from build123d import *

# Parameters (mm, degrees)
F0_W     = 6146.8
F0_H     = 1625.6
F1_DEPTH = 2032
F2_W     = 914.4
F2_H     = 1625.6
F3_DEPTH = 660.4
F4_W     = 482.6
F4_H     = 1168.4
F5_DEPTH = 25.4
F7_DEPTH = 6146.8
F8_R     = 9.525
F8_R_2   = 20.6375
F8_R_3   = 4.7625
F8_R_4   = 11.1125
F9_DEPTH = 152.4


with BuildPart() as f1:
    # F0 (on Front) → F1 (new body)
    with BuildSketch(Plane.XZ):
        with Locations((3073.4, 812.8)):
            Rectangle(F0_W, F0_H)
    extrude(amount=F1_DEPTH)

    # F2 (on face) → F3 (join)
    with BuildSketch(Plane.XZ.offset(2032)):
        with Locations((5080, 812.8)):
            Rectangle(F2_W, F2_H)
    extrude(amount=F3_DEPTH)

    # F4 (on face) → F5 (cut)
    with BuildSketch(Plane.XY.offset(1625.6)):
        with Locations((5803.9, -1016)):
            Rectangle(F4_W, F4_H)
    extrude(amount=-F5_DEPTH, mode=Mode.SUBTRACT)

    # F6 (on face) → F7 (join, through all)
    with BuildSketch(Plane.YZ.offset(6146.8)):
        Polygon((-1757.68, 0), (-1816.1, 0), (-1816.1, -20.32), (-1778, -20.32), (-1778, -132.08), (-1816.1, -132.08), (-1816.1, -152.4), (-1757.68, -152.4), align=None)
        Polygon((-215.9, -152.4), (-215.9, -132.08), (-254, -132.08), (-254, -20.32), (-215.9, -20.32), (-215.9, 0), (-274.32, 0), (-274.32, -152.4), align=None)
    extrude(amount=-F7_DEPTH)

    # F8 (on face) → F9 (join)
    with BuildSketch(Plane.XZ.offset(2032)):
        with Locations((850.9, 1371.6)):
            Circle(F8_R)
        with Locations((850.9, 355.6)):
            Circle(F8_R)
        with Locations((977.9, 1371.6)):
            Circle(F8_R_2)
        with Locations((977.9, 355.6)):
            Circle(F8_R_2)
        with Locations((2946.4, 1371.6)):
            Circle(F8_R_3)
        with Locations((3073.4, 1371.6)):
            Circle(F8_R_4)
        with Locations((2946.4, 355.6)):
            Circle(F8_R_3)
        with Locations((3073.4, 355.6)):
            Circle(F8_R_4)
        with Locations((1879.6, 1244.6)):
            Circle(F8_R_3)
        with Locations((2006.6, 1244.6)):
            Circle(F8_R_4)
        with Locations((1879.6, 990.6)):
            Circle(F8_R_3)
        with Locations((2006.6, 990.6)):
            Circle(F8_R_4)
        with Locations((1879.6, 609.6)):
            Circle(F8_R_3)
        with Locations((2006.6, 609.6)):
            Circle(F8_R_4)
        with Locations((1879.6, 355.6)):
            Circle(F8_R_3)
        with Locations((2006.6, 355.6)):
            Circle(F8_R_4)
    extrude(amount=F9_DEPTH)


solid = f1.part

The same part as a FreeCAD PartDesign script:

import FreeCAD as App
import Part
import Sketcher

V = App.Vector
Q = App.Units.Quantity

doc = App.newDocument("Part")
params = doc.addObject("Spreadsheet::Sheet", "Params")
for row, (alias, value) in enumerate([
    ("sketch1_width", "242 in"),
    ("sketch1_height", "64 in"),
    ("pad1_length", "80 in"),
    ("sketch2_width", "36 in"),
    ("sketch2_height", "64 in"),
    ("pad2_length", "26 in"),
    ("sketch3_width", "19 in"),
    ("sketch3_height", "46 in"),
    ("pocket1_length", "1 in"),
    ("sketch4_height", "6 in"),
    ("sketch4_width", "2.3 in"),
    ("sketch4_width2", "1.5 in"),
    ("sketch4_height2", "0.8 in"),
    ("pad3_length", "242 in"),
    ("sketch5_diameter", "0.75 in"),
    ("sketch5_diameter2", "1.625 in"),
    ("sketch5_diameter3", "0.375 in"),
    ("sketch5_diameter4", "0.875 in"),
    ("pad4_length", "6 in"),
], start=1):
    params.set(f"A{row}", alias)
    params.set(f"B{row}", "=" + value)
    params.setAlias(f"B{row}", alias)

body = doc.addObject("PartDesign::Body", "Body")

# Sketch on XZ plane
sketch1 = body.newObject("Sketcher::SketchObject", "Sketch")
sketch1.AttachmentSupport = (doc.getObject("XZ_Plane"), [""])
sketch1.MapMode = "FlatFace"
sketch1.addGeometry([
    Part.LineSegment(V(0, 1626, 0), V(0, 0, 0)),
    Part.LineSegment(V(0, 0, 0), V(6147, 0, 0)),
    Part.LineSegment(V(6147, 0, 0), V(6147, 1626, 0)),
    Part.LineSegment(V(6147, 1626, 0), V(0, 1626, 0)),
], False)
sketch1.addConstraint([
    Sketcher.Constraint("Coincident", 0, 2, 1, 1),
    Sketcher.Constraint("Coincident", 1, 2, 2, 1),
    Sketcher.Constraint("Coincident", 2, 2, 3, 1),
    Sketcher.Constraint("Coincident", 3, 2, 0, 1),
    Sketcher.Constraint("Vertical", 0),
    Sketcher.Constraint("Horizontal", 1),
    Sketcher.Constraint("Vertical", 2),
    Sketcher.Constraint("Horizontal", 3),
    Sketcher.Constraint("Coincident", 0, 2, -1, 1),
    Sketcher.Constraint("DistanceX", 1, 1, 1, 2, Q("242 in")),
    Sketcher.Constraint("DistanceY", 0, 2, 0, 1, Q("64 in")),
])
sketch1.setExpression("Constraints[9]", "Params.sketch1_width")
sketch1.setExpression("Constraints[10]", "Params.sketch1_height")
pad1 = body.newObject("PartDesign::Pad", "Pad")
pad1.Profile = sketch1
pad1.setExpression("Length", "Params.pad1_length")

# Sketch on XZ plane
sketch2 = body.newObject("Sketcher::SketchObject", "Sketch001")
sketch2.AttachmentSupport = (doc.getObject("XZ_Plane"), [""])
sketch2.MapMode = "FlatFace"
sketch2.AttachmentOffset = App.Placement(V(0, 0, 80 * 25.4), App.Rotation())
sketch2.addGeometry([
    Part.LineSegment(V(4623, 1626, 0), V(4623, 0, 0)),
    Part.LineSegment(V(4623, 0, 0), V(5537, 0, 0)),
    Part.LineSegment(V(5537, 0, 0), V(5537, 1626, 0)),
    Part.LineSegment(V(5537, 1626, 0), V(4623, 1626, 0)),
], False)
sketch2.addConstraint([
    Sketcher.Constraint("Coincident", 0, 2, 1, 1),
    Sketcher.Constraint("Coincident", 1, 2, 2, 1),
    Sketcher.Constraint("Coincident", 2, 2, 3, 1),
    Sketcher.Constraint("Coincident", 3, 2, 0, 1),
    Sketcher.Constraint("Vertical", 0),
    Sketcher.Constraint("Horizontal", 1),
    Sketcher.Constraint("Vertical", 2),
    Sketcher.Constraint("Horizontal", 3),
    Sketcher.Constraint("PointOnObject", 0, 2, -1),
    Sketcher.Constraint("DistanceX", 1, 1, 1, 2, Q("36 in")),
    Sketcher.Constraint("DistanceY", 0, 2, 0, 1, Q("64 in")),
    Sketcher.Constraint("DistanceX", -1, 1, 0, 2, Q("182 in")),
])
sketch2.setExpression("Constraints[9]", "Params.sketch2_width")
sketch2.setExpression("Constraints[10]", "Params.sketch2_height")
pad2 = body.newObject("PartDesign::Pad", "Pad001")
pad2.Profile = sketch2
pad2.setExpression("Length", "Params.pad2_length")

# Sketch on XY plane
sketch3 = body.newObject("Sketcher::SketchObject", "Sketch002")
sketch3.AttachmentSupport = (doc.getObject("XY_Plane"), [""])
sketch3.MapMode = "FlatFace"
sketch3.AttachmentOffset = App.Placement(V(0, 0, 64 * 25.4), App.Rotation())
sketch3.addGeometry([
    Part.LineSegment(V(5563, -432, 0), V(5563, -1600, 0)),
    Part.LineSegment(V(5563, -1600, 0), V(6045, -1600, 0)),
    Part.LineSegment(V(6045, -1600, 0), V(6045, -432, 0)),
    Part.LineSegment(V(6045, -432, 0), V(5563, -432, 0)),
], False)
sketch3.addConstraint([
    Sketcher.Constraint("Coincident", 0, 2, 1, 1),
    Sketcher.Constraint("Coincident", 1, 2, 2, 1),
    Sketcher.Constraint("Coincident", 2, 2, 3, 1),
    Sketcher.Constraint("Coincident", 3, 2, 0, 1),
    Sketcher.Constraint("Vertical", 0),
    Sketcher.Constraint("Horizontal", 1),
    Sketcher.Constraint("Vertical", 2),
    Sketcher.Constraint("Horizontal", 3),
    Sketcher.Constraint("DistanceX", 1, 1, 1, 2, Q("19 in")),
    Sketcher.Constraint("DistanceY", 0, 2, 0, 1, Q("46 in")),
    Sketcher.Constraint("DistanceX", -1, 1, 0, 2, Q("219 in")),
    Sketcher.Constraint("DistanceY", 0, 2, -1, 1, Q("63 in")),
])
sketch3.setExpression("Constraints[8]", "Params.sketch3_width")
sketch3.setExpression("Constraints[9]", "Params.sketch3_height")
pocket1 = body.newObject("PartDesign::Pocket", "Pocket")
pocket1.Profile = sketch3
pocket1.setExpression("Length", "Params.pocket1_length")

# Sketch on YZ plane
sketch4 = body.newObject("Sketcher::SketchObject", "Sketch003")
sketch4.AttachmentSupport = (doc.getObject("YZ_Plane"), [""])
sketch4.MapMode = "FlatFace"
sketch4.AttachmentOffset = App.Placement(V(0, 0, 242 * 25.4), App.Rotation())
sketch4.addGeometry([
    Part.LineSegment(V(-1758, 0, 0), V(-1816, 0, 0)),  # 0
    Part.LineSegment(V(-1816, 0, 0), V(-1816, -20, 0)),  # 1
    Part.LineSegment(V(-1816, -20, 0), V(-1778, -20, 0)),  # 2
    Part.LineSegment(V(-1778, -20, 0), V(-1778, -132, 0)),  # 3
    Part.LineSegment(V(-1778, -132, 0), V(-1816, -132, 0)),  # 4
    Part.LineSegment(V(-1816, -132, 0), V(-1816, -152, 0)),  # 5
    Part.LineSegment(V(-1816, -152, 0), V(-1758, -152, 0)),  # 6
    Part.LineSegment(V(-1758, -152, 0), V(-1758, 0, 0)),  # 7
    Part.LineSegment(V(-216, -152, 0), V(-216, -132, 0)),  # 8
    Part.LineSegment(V(-216, -132, 0), V(-254, -132, 0)),  # 9
    Part.LineSegment(V(-254, -132, 0), V(-254, -20, 0)),  # 10
    Part.LineSegment(V(-254, -20, 0), V(-216, -20, 0)),  # 11
    Part.LineSegment(V(-216, -20, 0), V(-216, 0, 0)),  # 12
    Part.LineSegment(V(-216, 0, 0), V(-274, 0, 0)),  # 13
    Part.LineSegment(V(-274, 0, 0), V(-274, -152, 0)),  # 14
    Part.LineSegment(V(-274, -152, 0), V(-216, -152, 0)),  # 15
], False)
sketch4.addConstraint([
    Sketcher.Constraint("Coincident", 0, 2, 1, 1),
    Sketcher.Constraint("Coincident", 1, 2, 2, 1),
    Sketcher.Constraint("Coincident", 2, 2, 3, 1),
    Sketcher.Constraint("Coincident", 3, 2, 4, 1),
    Sketcher.Constraint("Coincident", 4, 2, 5, 1),
    Sketcher.Constraint("Coincident", 5, 2, 6, 1),
    Sketcher.Constraint("Coincident", 6, 2, 7, 1),
    Sketcher.Constraint("Coincident", 7, 2, 0, 1),
    Sketcher.Constraint("Coincident", 8, 2, 9, 1),
    Sketcher.Constraint("Coincident", 9, 2, 10, 1),
    Sketcher.Constraint("Coincident", 10, 2, 11, 1),
    Sketcher.Constraint("Coincident", 11, 2, 12, 1),
    Sketcher.Constraint("Coincident", 12, 2, 13, 1),
    Sketcher.Constraint("Coincident", 13, 2, 14, 1),
    Sketcher.Constraint("Coincident", 14, 2, 15, 1),
    Sketcher.Constraint("Coincident", 15, 2, 8, 1),
    Sketcher.Constraint("Horizontal", 0),
    Sketcher.Constraint("Vertical", 1),
    Sketcher.Constraint("Horizontal", 2),
    Sketcher.Constraint("Vertical", 3),
    Sketcher.Constraint("Horizontal", 4),
    Sketcher.Constraint("Vertical", 5),
    Sketcher.Constraint("Horizontal", 6),
    Sketcher.Constraint("Vertical", 7),
    Sketcher.Constraint("Vertical", 8),
    Sketcher.Constraint("Horizontal", 9),
    Sketcher.Constraint("Vertical", 10),
    Sketcher.Constraint("Horizontal", 11),
    Sketcher.Constraint("Vertical", 12),
    Sketcher.Constraint("Horizontal", 13),
    Sketcher.Constraint("Vertical", 14),
    Sketcher.Constraint("Horizontal", 15),
    Sketcher.Constraint("PointOnObject", 0, 2, -1),
    Sketcher.Constraint("PointOnObject", 12, 2, -1),
    Sketcher.Constraint("Horizontal", 4, 2, 8, 2),
    Sketcher.Constraint("Horizontal", 2, 2, 10, 2),
    Sketcher.Constraint("Horizontal", 6, 2, 14, 2),
    Sketcher.Constraint("Vertical", 1, 2, 4, 2),
    Sketcher.Constraint("Vertical", 8, 2, 11, 2),
    Sketcher.Constraint("Equal", 4, 9),
    Sketcher.Constraint("Equal", 6, 13),
    Sketcher.Constraint("Equal", 1, 5),
    Sketcher.Constraint("DistanceY", 7, 1, 7, 2, Q("6 in")),
    Sketcher.Constraint("DistanceX", 0, 2, 0, 1, Q("2.3 in")),
    Sketcher.Constraint("DistanceX", 2, 1, 2, 2, Q("1.5 in")),
    Sketcher.Constraint("DistanceY", 1, 2, 1, 1, Q("0.8 in")),
    Sketcher.Constraint("DistanceX", 2, 2, -1, 1, Q("70 in")),
    Sketcher.Constraint("DistanceX", 9, 2, -1, 1, Q("10 in")),
])
sketch4.setExpression("Constraints[42]", "Params.sketch4_height")
sketch4.setExpression("Constraints[43]", "Params.sketch4_width")
sketch4.setExpression("Constraints[44]", "Params.sketch4_width2")
sketch4.setExpression("Constraints[45]", "Params.sketch4_height2")
pad3 = body.newObject("PartDesign::Pad", "Pad002")
pad3.Profile = sketch4
pad3.setExpression("Length", "Params.pad3_length")
pad3.Reversed = True

# Sketch on XZ plane
sketch5 = body.newObject("Sketcher::SketchObject", "Sketch004")
sketch5.AttachmentSupport = (doc.getObject("XZ_Plane"), [""])
sketch5.MapMode = "FlatFace"
sketch5.AttachmentOffset = App.Placement(V(0, 0, 80 * 25.4), App.Rotation())
sketch5.addGeometry([
    Part.Circle(V(850.9, 1371.6, 0), V(0, 0, 1), 9.5),  # 0
    Part.Circle(V(850.9, 355.6, 0), V(0, 0, 1), 9.5),  # 1
    Part.Circle(V(977.9, 1371.6, 0), V(0, 0, 1), 20.6),  # 2
    Part.Circle(V(977.9, 355.6, 0), V(0, 0, 1), 20.6),  # 3
    Part.Circle(V(2946.4, 1371.6, 0), V(0, 0, 1), 4.8),  # 4
    Part.Circle(V(3073.4, 1371.6, 0), V(0, 0, 1), 11.1),  # 5
    Part.Circle(V(2946.4, 355.6, 0), V(0, 0, 1), 4.8),  # 6
    Part.Circle(V(3073.4, 355.6, 0), V(0, 0, 1), 11.1),  # 7
    Part.Circle(V(1879.6, 1244.6, 0), V(0, 0, 1), 4.8),  # 8
    Part.Circle(V(2006.6, 1244.6, 0), V(0, 0, 1), 11.1),  # 9
    Part.Circle(V(1879.6, 990.6, 0), V(0, 0, 1), 4.8),  # 10
    Part.Circle(V(2006.6, 990.6, 0), V(0, 0, 1), 11.1),  # 11
    Part.Circle(V(1879.6, 609.6, 0), V(0, 0, 1), 4.8),  # 12
    Part.Circle(V(2006.6, 609.6, 0), V(0, 0, 1), 11.1),  # 13
    Part.Circle(V(1879.6, 355.6, 0), V(0, 0, 1), 4.8),  # 14
    Part.Circle(V(2006.6, 355.6, 0), V(0, 0, 1), 11.1),  # 15
], False)
sketch5.addConstraint([
    Sketcher.Constraint("Equal", 0, 1),
    Sketcher.Constraint("Equal", 2, 3),
    Sketcher.Constraint("Equal", 4, 6),
    Sketcher.Constraint("Equal", 5, 7),
    Sketcher.Constraint("Equal", 6, 8),
    Sketcher.Constraint("Equal", 7, 9),
    Sketcher.Constraint("Equal", 8, 10),
    Sketcher.Constraint("Equal", 9, 11),
    Sketcher.Constraint("Equal", 10, 12),
    Sketcher.Constraint("Equal", 11, 13),
    Sketcher.Constraint("Equal", 12, 14),
    Sketcher.Constraint("Equal", 13, 15),
    Sketcher.Constraint("Horizontal", 0, 3, 2, 3),
    Sketcher.Constraint("Horizontal", 1, 3, 3, 3),
    Sketcher.Constraint("Horizontal", 2, 3, 4, 3),
    Sketcher.Constraint("Horizontal", 4, 3, 5, 3),
    Sketcher.Constraint("Horizontal", 3, 3, 6, 3),
    Sketcher.Constraint("Horizontal", 6, 3, 7, 3),
    Sketcher.Constraint("Horizontal", 8, 3, 9, 3),
    Sketcher.Constraint("Horizontal", 10, 3, 11, 3),
    Sketcher.Constraint("Horizontal", 12, 3, 13, 3),
    Sketcher.Constraint("Horizontal", 7, 3, 14, 3),
    Sketcher.Constraint("Horizontal", 14, 3, 15, 3),
    Sketcher.Constraint("Vertical", 0, 3, 1, 3),
    Sketcher.Constraint("Vertical", 2, 3, 3, 3),
    Sketcher.Constraint("Vertical", 4, 3, 6, 3),
    Sketcher.Constraint("Vertical", 5, 3, 7, 3),
    Sketcher.Constraint("Vertical", 8, 3, 10, 3),
    Sketcher.Constraint("Vertical", 9, 3, 11, 3),
    Sketcher.Constraint("Vertical", 10, 3, 12, 3),
    Sketcher.Constraint("Vertical", 11, 3, 13, 3),
    Sketcher.Constraint("Vertical", 12, 3, 14, 3),
    Sketcher.Constraint("Vertical", 13, 3, 15, 3),
    Sketcher.Constraint("Diameter", 0, Q("0.75 in")),
    Sketcher.Constraint("Diameter", 2, Q("1.625 in")),
    Sketcher.Constraint("Diameter", 4, Q("0.375 in")),
    Sketcher.Constraint("Diameter", 5, Q("0.875 in")),
    Sketcher.Constraint("DistanceY", -1, 1, 0, 3, Q("54 in")),
    Sketcher.Constraint("DistanceY", -1, 1, 1, 3, Q("14 in")),
    Sketcher.Constraint("DistanceX", -1, 1, 4, 3, Q("116 in")),
    Sketcher.Constraint("DistanceX", -1, 1, 5, 3, Q("121 in")),
    Sketcher.Constraint("DistanceX", -1, 1, 8, 3, Q("74 in")),
    Sketcher.Constraint("DistanceY", -1, 1, 8, 3, Q("49 in")),
    Sketcher.Constraint("DistanceX", -1, 1, 9, 3, Q("79 in")),
    Sketcher.Constraint("DistanceY", -1, 1, 10, 3, Q("39 in")),
    Sketcher.Constraint("DistanceY", -1, 1, 12, 3, Q("24 in")),
    Sketcher.Constraint("DistanceX", 0, 3, 2, 3, Q("5 in")),
    Sketcher.Constraint("DistanceX", -1, 1, 0, 3, Q("33.5 in")),
])
sketch5.setExpression("Constraints[33]", "Params.sketch5_diameter")
sketch5.setExpression("Constraints[34]", "Params.sketch5_diameter2")
sketch5.setExpression("Constraints[35]", "Params.sketch5_diameter3")
sketch5.setExpression("Constraints[36]", "Params.sketch5_diameter4")
pad4 = body.newObject("PartDesign::Pad", "Pad003")
pad4.Profile = sketch5
pad4.setExpression("Length", "Params.pad4_length")

doc.recompute()
